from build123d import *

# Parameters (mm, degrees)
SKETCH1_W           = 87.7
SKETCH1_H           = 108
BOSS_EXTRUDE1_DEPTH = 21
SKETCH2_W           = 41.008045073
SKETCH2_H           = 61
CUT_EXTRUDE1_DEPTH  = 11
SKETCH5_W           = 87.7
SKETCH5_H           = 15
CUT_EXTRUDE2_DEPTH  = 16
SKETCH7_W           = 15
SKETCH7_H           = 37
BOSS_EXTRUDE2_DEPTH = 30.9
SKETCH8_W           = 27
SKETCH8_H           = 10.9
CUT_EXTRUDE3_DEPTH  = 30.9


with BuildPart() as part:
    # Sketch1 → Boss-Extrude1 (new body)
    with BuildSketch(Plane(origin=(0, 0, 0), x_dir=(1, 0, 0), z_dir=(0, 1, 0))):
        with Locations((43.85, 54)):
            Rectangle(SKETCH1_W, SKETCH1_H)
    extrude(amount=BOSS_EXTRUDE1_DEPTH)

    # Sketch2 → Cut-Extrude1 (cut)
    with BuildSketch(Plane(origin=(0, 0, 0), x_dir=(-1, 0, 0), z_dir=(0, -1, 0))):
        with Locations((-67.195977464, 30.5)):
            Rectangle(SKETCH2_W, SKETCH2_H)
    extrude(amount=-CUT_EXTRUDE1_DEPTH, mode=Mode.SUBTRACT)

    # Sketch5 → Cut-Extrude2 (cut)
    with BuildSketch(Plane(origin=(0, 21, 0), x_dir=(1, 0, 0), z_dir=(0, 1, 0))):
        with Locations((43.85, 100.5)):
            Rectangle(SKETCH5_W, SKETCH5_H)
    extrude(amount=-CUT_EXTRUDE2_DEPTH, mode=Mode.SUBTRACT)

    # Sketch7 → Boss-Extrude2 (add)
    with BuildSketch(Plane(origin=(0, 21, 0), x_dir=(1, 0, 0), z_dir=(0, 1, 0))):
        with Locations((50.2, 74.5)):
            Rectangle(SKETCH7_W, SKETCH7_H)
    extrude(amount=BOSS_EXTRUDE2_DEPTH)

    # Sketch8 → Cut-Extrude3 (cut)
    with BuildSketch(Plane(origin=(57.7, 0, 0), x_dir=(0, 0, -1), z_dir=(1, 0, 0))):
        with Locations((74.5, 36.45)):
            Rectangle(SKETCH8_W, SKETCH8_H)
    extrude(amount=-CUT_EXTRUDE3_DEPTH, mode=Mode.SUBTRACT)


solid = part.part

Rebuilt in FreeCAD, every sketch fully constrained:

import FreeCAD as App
import Part
import Sketcher
from FreeCAD import Vector
Q = App.Units.Quantity

doc = App.newDocument("Part")
body = doc.addObject("PartDesign::Body", "Body")

sketch1 = body.newObject("Sketcher::SketchObject", "Sketch")
sketch1.AttachmentSupport = (doc.getObject("XZ_Plane"), [""])
sketch1.MapMode = "FlatFace"
sketch1.addGeometry([
    Part.LineSegment(Vector(0, -108, 0), Vector(0, 0, 0)),
    Part.LineSegment(Vector(0, 0, 0), Vector(87.7, 0, 0)),
    Part.LineSegment(Vector(87.7, 0, 0), Vector(87.7, -108, 0)),
    Part.LineSegment(Vector(87.7, -108, 0), Vector(0, -108, 0)),
], False)
sketch1.addConstraint([
    Sketcher.Constraint("Coincident", 0, 2, 1, 1),
    Sketcher.Constraint("Coincident", 1, 2, 2, 1),
    Sketcher.Constraint("Coincident", 2, 2, 3, 1),
    Sketcher.Constraint("Coincident", 3, 2, 0, 1),
    Sketcher.Constraint("Vertical", 0),
    Sketcher.Constraint("Horizontal", 1),
    Sketcher.Constraint("Vertical", 2),
    Sketcher.Constraint("Horizontal", 3),
    Sketcher.Constraint("Coincident", 0, 2, -1, 1),
    Sketcher.Constraint("DistanceY", 0, 1, 0, 2, Q("108 mm")),
    Sketcher.Constraint("DistanceX", 1, 1, 1, 2, Q("87.7 mm")),
])
pad1 = body.newObject("PartDesign::Pad", "Pad")
pad1.Profile = sketch1
pad1.Length = 21
pad1.Reversed = True

sketch2 = body.newObject("Sketcher::SketchObject", "Sketch001")
sketch2.AttachmentSupport = (doc.getObject("XZ_Plane"), [""])
sketch2.MapMode = "FlatFace"
sketch2.addGeometry([
    Part.LineSegment(Vector(87.7, -61, 0), Vector(87.7, 0, 0)),
    Part.LineSegment(Vector(87.7, 0, 0), Vector(46.691955, 0, 0)),
    Part.LineSegment(Vector(46.691955, 0, 0), Vector(46.691955, -61, 0)),
    Part.LineSegment(Vector(46.691955, -61, 0), Vector(87.7, -61, 0)),
], False)
sketch2.addConstraint([
    Sketcher.Constraint("Coincident", 0, 2, 1, 1),
    Sketcher.Constraint("Coincident", 1, 2, 2, 1),
    Sketcher.Constraint("Coincident", 2, 2, 3, 1),
    Sketcher.Constraint("Coincident", 3, 2, 0, 1),
    Sketcher.Constraint("Vertical", 0),
    Sketcher.Constraint("Horizontal", 1),
    Sketcher.Constraint("Vertical", 2),
    Sketcher.Constraint("Horizontal", 3),
    Sketcher.Constraint("PointOnObject", 0, 2, -1),
    Sketcher.Constraint("DistanceY", 0, 1, 0, 2, Q("61 mm")),
    Sketcher.Constraint("DistanceX", -1, 1, 0, 2, Q("87.7 mm")),
    Sketcher.Constraint("DistanceX", 1, 2, 1, 1, Q("41.008045 mm")),
])
pocket1 = body.newObject("PartDesign::Pocket", "Pocket")
pocket1.Profile = sketch2
pocket1.Length = 11

sketch3 = body.newObject("Sketcher::SketchObject", "Sketch002")
sketch3.AttachmentSupport = (doc.getObject("XZ_Plane"), [""])
sketch3.MapMode = "FlatFace"
sketch3.AttachmentOffset = App.Placement(Vector(0, 0, -21), App.Rotation())
sketch3.addGeometry([
    Part.LineSegment(Vector(0, -108, 0), Vector(0, -93, 0)),
    Part.LineSegment(Vector(0, -93, 0), Vector(87.7, -93, 0)),
    Part.LineSegment(Vector(87.7, -93, 0), Vector(87.7, -108, 0)),
    Part.LineSegment(Vector(87.7, -108, 0), Vector(0, -108, 0)),
], False)
sketch3.addConstraint([
    Sketcher.Constraint("Coincident", 0, 2, 1, 1),
    Sketcher.Constraint("Coincident", 1, 2, 2, 1),
    Sketcher.Constraint("Coincident", 2, 2, 3, 1),
    Sketcher.Constraint("Coincident", 3, 2, 0, 1),
    Sketcher.Constraint("Vertical", 0),
    Sketcher.Constraint("Horizontal", 1),
    Sketcher.Constraint("Vertical", 2),
    Sketcher.Constraint("Horizontal", 3),
    Sketcher.Constraint("PointOnObject", 0, 2, -2),
    Sketcher.Constraint("DistanceY", 0, 1, 0, 2, Q("15 mm")),
    Sketcher.Constraint("DistanceX", 1, 1, 1, 2, Q("87.7 mm")),
    Sketcher.Constraint("DistanceY", 0, 2, -1, 1, Q("93 mm")),
])
pocket2 = body.newObject("PartDesign::Pocket", "Pocket001")
pocket2.Profile = sketch3
pocket2.Length = 16
pocket2.Reversed = True

sketch4 = body.newObject("Sketcher::SketchObject", "Sketch003")
sketch4.AttachmentSupport = (doc.getObject("XZ_Plane"), [""])
sketch4.MapMode = "FlatFace"
sketch4.AttachmentOffset = App.Placement(Vector(0, 0, -21), App.Rotation())
sketch4.addGeometry([
    Part.LineSegment(Vector(42.7, -93, 0), Vector(42.7, -56, 0)),
    Part.LineSegment(Vector(42.7, -56, 0), Vector(57.7, -56, 0)),
    Part.LineSegment(Vector(57.7, -56, 0), Vector(57.7, -93, 0)),
    Part.LineSegment(Vector(57.7, -93, 0), Vector(42.7, -93, 0)),
], False)
sketch4.addConstraint([
    Sketcher.Constraint("Coincident", 0, 2, 1, 1),
    Sketcher.Constraint("Coincident", 1, 2, 2, 1),
    Sketcher.Constraint("Coincident", 2, 2, 3, 1),
    Sketcher.Constraint("Coincident", 3, 2, 0, 1),
    Sketcher.Constraint("Vertical", 0),
    Sketcher.Constraint("Horizontal", 1),
    Sketcher.Constraint("Vertical", 2),
    Sketcher.Constraint("Horizontal", 3),
    Sketcher.Constraint("DistanceX", 1, 1, 1, 2, Q("15 mm")),
    Sketcher.Constraint("DistanceY", 0, 1, 0, 2, Q("37 mm")),
    Sketcher.Constraint("DistanceY", 0, 2, -1, 1, Q("56 mm")),
    Sketcher.Constraint("DistanceX", -1, 1, 0, 2, Q("42.7 mm")),
])
pad2 = body.newObject("PartDesign::Pad", "Pad001")
pad2.Profile = sketch4
pad2.Length = 30.9
pad2.Reversed = True

sketch5 = body.newObject("Sketcher::SketchObject", "Sketch004")
sketch5.AttachmentSupport = (doc.getObject("YZ_Plane"), [""])
sketch5.MapMode = "FlatFace"
sketch5.AttachmentOffset = App.Placement(Vector(0, 0, 57.7), App.Rotation())
sketch5.addGeometry([
    Part.LineSegment(Vector(41.9, -61, 0), Vector(31, -61, 0)),
    Part.LineSegment(Vector(31, -61, 0), Vector(31, -88, 0)),
    Part.LineSegment(Vector(31, -88, 0), Vector(41.9, -88, 0)),
    Part.LineSegment(Vector(41.9, -88, 0), Vector(41.9, -61, 0)),
], False)
sketch5.addConstraint([
    Sketcher.Constraint("Coincident", 0, 2, 1, 1),
    Sketcher.Constraint("Coincident", 1, 2, 2, 1),
    Sketcher.Constraint("Coincident", 2, 2, 3, 1),
    Sketcher.Constraint("Coincident", 3, 2, 0, 1),
    Sketcher.Constraint("Horizontal", 0),
    Sketcher.Constraint("Vertical", 1),
    Sketcher.Constraint("Horizontal", 2),
    Sketcher.Constraint("Vertical", 3),
    Sketcher.Constraint("DistanceY", 1, 2, 1, 1, Q("27 mm")),
    Sketcher.Constraint("DistanceX", 0, 2, 0, 1, Q("10.9 mm")),
    Sketcher.Constraint("DistanceX", -1, 1, 0, 2, Q("31 mm")),
    Sketcher.Constraint("DistanceY", 0, 2, -1, 1, Q("61 mm")),
])
pocket3 = body.newObject("PartDesign::Pocket", "Pocket002")
pocket3.Profile = sketch5
pocket3.Length = 30.9

doc.recompute()
